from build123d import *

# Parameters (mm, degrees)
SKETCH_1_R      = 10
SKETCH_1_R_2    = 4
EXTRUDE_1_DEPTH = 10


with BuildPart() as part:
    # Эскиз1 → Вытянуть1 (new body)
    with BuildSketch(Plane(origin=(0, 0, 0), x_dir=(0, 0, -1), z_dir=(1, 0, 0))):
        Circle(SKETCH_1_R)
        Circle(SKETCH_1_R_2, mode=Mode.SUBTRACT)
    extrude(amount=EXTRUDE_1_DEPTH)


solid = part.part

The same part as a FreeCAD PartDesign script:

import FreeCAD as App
import Part
import Sketcher

V = App.Vector
Q = App.Units.Quantity

doc = App.newDocument("Part")
body = doc.addObject("PartDesign::Body", "Body")

sketch1 = body.newObject("Sketcher::SketchObject", "Sketch")
sketch1.AttachmentSupport = (doc.getObject("YZ_Plane"), [""])
sketch1.MapMode = "FlatFace"
sketch1.addGeometry(Part.Circle(V(0, 0, 0), V(0, 0, 1), 10), False)
sketch1.addGeometry(Part.Circle(V(0, 0, 0), V(0, 0, 1), 4), False)
sketch1.addConstraint(Sketcher.Constraint("Coincident", 0, 3, -1, 1))
sketch1.addConstraint(Sketcher.Constraint("Coincident", 1, 3, -1, 1))
sketch1.addConstraint(Sketcher.Constraint("Diameter", 0, Q("20 mm")))
sketch1.addConstraint(Sketcher.Constraint("Diameter", 1, Q("8 mm")))
pad1 = body.newObject("PartDesign::Pad", "Pad")
pad1.Profile = sketch1
pad1.Length = 10

doc.recompute()
